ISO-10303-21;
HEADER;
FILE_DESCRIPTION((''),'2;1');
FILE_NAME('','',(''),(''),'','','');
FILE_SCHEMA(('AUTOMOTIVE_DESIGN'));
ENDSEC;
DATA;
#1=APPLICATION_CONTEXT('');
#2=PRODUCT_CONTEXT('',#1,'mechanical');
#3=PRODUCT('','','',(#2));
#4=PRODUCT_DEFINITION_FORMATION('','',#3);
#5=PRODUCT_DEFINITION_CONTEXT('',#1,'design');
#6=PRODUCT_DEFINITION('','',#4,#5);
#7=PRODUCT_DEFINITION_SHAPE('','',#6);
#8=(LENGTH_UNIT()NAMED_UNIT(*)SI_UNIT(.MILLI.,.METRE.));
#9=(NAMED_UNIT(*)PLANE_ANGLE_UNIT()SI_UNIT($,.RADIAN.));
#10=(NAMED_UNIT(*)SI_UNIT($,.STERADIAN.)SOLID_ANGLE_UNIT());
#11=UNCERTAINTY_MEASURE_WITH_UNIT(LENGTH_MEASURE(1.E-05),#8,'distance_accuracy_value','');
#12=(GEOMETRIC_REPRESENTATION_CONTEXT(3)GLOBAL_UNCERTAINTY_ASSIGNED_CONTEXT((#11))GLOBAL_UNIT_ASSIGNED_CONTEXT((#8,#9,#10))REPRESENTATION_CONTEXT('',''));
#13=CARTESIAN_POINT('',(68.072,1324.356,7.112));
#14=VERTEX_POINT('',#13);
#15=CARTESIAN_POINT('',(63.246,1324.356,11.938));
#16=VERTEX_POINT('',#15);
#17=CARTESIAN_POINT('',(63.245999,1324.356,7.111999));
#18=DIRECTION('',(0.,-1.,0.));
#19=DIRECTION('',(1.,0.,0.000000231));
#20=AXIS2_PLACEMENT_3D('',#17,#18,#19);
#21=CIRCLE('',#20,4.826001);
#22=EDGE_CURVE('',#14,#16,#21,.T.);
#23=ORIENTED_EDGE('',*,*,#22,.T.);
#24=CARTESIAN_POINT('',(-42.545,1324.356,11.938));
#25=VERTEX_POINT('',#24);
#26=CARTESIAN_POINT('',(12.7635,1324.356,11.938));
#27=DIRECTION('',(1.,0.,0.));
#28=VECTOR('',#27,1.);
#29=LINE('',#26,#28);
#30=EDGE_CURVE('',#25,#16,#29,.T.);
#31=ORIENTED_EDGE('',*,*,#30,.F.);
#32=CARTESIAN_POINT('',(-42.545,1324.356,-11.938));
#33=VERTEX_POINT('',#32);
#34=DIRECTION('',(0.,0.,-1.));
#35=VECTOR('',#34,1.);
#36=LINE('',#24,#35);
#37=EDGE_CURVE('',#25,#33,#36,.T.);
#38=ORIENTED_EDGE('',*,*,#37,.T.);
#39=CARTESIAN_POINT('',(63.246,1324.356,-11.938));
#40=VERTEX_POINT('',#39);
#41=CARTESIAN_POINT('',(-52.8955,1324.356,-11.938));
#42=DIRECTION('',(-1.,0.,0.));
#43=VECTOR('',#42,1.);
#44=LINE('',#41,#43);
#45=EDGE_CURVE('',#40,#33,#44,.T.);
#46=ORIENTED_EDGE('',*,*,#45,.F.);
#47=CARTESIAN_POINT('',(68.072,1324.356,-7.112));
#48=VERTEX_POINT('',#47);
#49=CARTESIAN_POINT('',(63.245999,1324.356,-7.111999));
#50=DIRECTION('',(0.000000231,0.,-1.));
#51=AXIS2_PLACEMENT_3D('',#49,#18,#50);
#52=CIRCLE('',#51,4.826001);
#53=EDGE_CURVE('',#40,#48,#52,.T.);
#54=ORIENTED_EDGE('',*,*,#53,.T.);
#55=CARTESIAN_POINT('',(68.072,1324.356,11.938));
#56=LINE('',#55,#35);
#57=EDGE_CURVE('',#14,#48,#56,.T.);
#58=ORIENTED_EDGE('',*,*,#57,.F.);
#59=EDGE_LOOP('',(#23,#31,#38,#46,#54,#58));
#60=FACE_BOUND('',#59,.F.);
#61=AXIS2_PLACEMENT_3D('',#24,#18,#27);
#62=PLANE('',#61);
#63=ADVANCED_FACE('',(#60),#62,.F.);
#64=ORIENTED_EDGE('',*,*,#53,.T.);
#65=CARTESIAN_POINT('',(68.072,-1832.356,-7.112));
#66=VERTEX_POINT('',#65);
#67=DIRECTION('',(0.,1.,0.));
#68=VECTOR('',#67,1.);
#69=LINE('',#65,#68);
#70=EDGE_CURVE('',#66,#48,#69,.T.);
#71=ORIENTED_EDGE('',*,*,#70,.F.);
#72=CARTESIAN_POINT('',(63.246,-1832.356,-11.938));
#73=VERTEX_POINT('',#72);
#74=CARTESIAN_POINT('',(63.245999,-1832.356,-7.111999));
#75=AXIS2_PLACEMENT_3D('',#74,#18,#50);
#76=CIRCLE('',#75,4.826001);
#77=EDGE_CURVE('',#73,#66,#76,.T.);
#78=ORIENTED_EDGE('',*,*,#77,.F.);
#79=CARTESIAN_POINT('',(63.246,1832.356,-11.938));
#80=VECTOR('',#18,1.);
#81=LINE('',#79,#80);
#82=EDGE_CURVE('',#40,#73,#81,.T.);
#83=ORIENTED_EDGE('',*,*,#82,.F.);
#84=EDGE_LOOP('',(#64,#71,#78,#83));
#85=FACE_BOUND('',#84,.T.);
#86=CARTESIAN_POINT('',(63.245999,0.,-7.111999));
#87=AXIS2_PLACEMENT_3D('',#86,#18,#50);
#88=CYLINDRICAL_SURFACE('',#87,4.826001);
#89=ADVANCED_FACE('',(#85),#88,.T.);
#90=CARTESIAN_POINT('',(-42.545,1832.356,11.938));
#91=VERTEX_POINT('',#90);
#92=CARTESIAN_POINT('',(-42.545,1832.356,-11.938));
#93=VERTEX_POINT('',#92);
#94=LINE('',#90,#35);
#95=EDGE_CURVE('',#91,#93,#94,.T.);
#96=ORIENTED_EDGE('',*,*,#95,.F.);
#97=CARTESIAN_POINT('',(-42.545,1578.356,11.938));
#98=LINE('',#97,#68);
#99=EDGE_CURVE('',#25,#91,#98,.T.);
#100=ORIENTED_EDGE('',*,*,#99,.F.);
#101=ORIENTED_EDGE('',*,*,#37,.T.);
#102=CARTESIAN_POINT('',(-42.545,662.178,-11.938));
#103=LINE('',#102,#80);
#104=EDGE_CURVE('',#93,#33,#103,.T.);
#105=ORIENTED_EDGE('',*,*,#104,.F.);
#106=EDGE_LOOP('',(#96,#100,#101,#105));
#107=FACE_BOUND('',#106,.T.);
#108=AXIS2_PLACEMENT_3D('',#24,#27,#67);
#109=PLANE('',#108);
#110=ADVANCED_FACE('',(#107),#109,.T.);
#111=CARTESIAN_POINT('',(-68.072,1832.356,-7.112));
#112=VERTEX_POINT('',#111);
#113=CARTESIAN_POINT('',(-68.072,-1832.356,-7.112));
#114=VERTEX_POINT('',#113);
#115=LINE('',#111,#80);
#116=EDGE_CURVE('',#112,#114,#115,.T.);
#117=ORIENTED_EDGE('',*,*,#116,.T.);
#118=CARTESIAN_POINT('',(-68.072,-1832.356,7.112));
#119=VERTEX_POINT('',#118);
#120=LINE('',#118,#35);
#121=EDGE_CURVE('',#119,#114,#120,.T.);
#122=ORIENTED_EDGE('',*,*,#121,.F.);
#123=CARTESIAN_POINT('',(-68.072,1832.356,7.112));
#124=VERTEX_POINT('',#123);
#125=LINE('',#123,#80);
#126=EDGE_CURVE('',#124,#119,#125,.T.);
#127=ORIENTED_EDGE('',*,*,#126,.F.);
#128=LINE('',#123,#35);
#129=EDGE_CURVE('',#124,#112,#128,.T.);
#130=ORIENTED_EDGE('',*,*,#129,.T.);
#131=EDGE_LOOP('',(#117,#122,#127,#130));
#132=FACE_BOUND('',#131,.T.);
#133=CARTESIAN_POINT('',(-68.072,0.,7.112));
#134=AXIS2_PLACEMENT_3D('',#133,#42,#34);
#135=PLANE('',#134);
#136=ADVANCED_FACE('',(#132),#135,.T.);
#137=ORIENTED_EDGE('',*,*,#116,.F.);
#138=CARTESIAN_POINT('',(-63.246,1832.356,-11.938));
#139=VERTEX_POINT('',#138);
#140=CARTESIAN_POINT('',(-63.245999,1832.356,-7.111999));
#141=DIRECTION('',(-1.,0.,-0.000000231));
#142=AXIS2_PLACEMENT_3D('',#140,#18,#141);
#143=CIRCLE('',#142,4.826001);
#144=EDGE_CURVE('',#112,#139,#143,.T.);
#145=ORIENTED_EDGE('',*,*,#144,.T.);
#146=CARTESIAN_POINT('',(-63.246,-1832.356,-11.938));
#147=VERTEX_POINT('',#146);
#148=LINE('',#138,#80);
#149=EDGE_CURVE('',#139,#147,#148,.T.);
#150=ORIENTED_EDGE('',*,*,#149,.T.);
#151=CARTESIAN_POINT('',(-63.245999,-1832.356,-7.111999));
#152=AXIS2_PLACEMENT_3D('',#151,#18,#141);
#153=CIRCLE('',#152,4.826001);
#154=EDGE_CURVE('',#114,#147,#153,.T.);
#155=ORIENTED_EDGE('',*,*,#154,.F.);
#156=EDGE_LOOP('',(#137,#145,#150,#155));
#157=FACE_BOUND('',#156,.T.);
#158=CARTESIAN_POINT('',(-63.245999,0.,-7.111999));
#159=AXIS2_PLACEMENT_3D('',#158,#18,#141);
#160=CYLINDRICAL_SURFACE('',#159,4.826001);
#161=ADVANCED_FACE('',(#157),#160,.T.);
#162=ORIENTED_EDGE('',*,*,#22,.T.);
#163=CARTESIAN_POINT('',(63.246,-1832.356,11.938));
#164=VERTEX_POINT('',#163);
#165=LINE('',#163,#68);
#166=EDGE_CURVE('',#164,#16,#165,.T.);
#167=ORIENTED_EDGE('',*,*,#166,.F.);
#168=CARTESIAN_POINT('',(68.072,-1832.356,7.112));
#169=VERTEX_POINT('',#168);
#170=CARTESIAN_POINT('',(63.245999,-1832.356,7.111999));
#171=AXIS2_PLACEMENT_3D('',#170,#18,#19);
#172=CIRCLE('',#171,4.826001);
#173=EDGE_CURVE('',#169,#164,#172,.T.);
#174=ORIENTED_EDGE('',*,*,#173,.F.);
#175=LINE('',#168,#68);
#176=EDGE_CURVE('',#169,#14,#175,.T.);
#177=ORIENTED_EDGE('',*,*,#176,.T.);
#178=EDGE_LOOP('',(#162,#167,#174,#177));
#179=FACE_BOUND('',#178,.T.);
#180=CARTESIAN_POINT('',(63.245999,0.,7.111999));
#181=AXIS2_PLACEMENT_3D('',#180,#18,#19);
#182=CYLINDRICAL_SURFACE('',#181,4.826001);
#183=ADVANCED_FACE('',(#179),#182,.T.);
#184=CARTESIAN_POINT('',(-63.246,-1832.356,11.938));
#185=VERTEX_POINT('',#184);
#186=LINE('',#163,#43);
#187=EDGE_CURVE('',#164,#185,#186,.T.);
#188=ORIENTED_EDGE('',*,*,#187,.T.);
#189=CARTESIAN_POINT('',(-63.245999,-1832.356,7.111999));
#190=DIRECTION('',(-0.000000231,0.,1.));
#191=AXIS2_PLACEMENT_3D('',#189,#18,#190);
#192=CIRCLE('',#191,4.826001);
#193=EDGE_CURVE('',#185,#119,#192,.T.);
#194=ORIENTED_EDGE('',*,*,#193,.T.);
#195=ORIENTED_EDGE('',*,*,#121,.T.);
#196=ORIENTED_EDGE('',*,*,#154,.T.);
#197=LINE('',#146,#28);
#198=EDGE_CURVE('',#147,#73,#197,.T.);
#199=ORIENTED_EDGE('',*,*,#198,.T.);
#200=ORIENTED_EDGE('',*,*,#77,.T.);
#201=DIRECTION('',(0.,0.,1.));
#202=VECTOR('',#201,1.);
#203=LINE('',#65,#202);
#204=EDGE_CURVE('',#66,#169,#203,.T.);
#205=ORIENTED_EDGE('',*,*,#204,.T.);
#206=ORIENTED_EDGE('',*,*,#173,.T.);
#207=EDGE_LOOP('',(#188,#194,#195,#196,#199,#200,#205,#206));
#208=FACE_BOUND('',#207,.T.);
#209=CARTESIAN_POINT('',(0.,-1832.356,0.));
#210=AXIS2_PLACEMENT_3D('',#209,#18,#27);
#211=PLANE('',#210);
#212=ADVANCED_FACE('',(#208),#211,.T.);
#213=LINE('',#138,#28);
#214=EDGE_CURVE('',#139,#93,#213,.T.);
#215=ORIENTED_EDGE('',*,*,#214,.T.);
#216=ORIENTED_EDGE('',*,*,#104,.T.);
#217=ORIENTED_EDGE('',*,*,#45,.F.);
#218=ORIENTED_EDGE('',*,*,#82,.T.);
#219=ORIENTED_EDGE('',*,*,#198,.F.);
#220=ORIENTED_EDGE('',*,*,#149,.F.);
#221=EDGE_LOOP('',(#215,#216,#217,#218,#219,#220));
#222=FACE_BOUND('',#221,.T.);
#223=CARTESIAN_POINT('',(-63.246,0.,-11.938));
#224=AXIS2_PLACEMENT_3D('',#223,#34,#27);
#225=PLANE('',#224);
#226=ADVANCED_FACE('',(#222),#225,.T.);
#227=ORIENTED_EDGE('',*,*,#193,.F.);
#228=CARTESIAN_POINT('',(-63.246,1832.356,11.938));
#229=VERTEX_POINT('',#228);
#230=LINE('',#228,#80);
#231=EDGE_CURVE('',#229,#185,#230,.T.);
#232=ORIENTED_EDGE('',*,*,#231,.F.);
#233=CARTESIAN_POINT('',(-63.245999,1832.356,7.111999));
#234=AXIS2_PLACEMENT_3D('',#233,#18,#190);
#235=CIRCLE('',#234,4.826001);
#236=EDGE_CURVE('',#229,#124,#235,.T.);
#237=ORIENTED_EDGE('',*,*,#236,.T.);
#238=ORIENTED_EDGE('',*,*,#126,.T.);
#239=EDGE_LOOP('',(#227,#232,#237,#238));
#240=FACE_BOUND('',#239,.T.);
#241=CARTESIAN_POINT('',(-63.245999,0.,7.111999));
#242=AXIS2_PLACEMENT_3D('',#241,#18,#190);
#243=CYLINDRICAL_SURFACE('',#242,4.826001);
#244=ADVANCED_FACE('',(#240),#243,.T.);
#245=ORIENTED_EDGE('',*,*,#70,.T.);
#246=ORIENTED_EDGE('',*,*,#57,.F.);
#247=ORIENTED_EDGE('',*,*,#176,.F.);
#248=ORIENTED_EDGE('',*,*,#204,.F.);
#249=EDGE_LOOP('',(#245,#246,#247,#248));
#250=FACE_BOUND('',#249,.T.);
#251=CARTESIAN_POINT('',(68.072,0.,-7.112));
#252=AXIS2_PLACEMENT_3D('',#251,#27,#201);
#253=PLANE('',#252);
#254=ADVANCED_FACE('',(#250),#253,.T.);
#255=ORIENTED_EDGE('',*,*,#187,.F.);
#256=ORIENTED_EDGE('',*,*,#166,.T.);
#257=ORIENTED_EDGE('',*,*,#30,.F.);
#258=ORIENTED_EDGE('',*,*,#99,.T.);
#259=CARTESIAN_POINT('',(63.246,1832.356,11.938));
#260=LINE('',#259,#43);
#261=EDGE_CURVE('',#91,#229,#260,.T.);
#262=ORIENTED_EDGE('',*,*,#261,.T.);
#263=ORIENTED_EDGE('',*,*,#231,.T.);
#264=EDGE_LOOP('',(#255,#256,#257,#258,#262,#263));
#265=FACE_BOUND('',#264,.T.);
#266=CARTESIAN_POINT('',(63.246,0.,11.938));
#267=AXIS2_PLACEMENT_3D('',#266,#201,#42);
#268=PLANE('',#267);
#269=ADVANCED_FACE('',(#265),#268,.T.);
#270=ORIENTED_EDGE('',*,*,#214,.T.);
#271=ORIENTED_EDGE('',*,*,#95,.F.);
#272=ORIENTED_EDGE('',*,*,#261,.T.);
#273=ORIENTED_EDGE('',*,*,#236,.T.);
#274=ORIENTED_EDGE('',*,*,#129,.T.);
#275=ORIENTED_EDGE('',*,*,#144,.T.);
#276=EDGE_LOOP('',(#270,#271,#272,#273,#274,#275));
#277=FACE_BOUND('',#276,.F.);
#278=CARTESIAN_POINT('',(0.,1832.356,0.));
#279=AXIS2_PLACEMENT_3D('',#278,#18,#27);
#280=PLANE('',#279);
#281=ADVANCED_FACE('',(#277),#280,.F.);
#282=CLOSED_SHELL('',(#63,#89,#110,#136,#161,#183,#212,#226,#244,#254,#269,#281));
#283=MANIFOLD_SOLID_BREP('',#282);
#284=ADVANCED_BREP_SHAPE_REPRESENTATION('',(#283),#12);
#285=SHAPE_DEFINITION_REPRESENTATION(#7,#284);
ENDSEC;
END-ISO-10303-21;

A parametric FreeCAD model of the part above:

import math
import FreeCAD as App
import Part
import Sketcher

V = App.Vector
Q = App.Units.Quantity

doc = App.newDocument("Part")
body = doc.addObject("PartDesign::Body", "Body")

sketch1 = body.newObject("Sketcher::SketchObject", "Sketch")
sketch1.AttachmentSupport = (doc.getObject("XZ_Plane"), [""])
sketch1.MapMode = "FlatFace"
sketch1.addGeometry([
    Part.LineSegment(V(63.2, 11.9, 0), V(-63.2, 11.9, 0)),
    Part.ArcOfCircle(Part.Circle(V(-63.2, 7.1, 0), V(0, 0, 1), 4.8), math.radians(90), math.radians(180)),
    Part.LineSegment(V(-68.1, 7.1, 0), V(-68.1, -7.1, 0)),
    Part.ArcOfCircle(Part.Circle(V(-63.2, -7.1, 0), V(0, 0, 1), 4.8), math.radians(-180), math.radians(-90)),
    Part.LineSegment(V(-63.2, -11.9, 0), V(63.2, -11.9, 0)),
    Part.ArcOfCircle(Part.Circle(V(63.2, -7.1, 0), V(0, 0, 1), 4.8), math.radians(-90), math.radians(0)),
    Part.LineSegment(V(68.1, -7.1, 0), V(68.1, 7.1, 0)),
    Part.ArcOfCircle(Part.Circle(V(63.2, 7.1, 0), V(0, 0, 1), 4.8), math.radians(0), math.radians(90)),
], False)
sketch1.addConstraint([
    Sketcher.Constraint("Tangent", 0, 2, 1, 1),
    Sketcher.Constraint("Tangent", 1, 2, 2, 1),
    Sketcher.Constraint("Tangent", 2, 2, 3, 1),
    Sketcher.Constraint("Tangent", 3, 2, 4, 1),
    Sketcher.Constraint("Tangent", 4, 2, 5, 1),
    Sketcher.Constraint("Tangent", 5, 2, 6, 1),
    Sketcher.Constraint("Tangent", 6, 2, 7, 1),
    Sketcher.Constraint("Tangent", 7, 2, 0, 1),
    Sketcher.Constraint("Horizontal", 0),
    Sketcher.Constraint("Vertical", 2),
    Sketcher.Constraint("Horizontal", 4),
    Sketcher.Constraint("Vertical", 6),
    Sketcher.Constraint("Equal", 1, 3),
    Sketcher.Constraint("Equal", 3, 5),
    Sketcher.Constraint("Equal", 5, 7),
    Sketcher.Constraint("Symmetric", 1, 3, 5, 3, -1, 1),
    Sketcher.Constraint("Radius", 1, Q("0.19 in")),
    Sketcher.Constraint("DistanceX", 0, 2, 0, 1, Q("4.98 in")),
    Sketcher.Constraint("DistanceY", 2, 2, 2, 1, Q("0.56 in")),
])
pad1 = body.newObject("PartDesign::Pad", "Pad")
pad1.Profile = sketch1
pad1.Length = Q("144.28 in")
pad1.Midplane = True

sketch2 = body.newObject("Sketcher::SketchObject", "Sketch001")
sketch2.AttachmentSupport = (doc.getObject("XY_Plane"), [""])
sketch2.MapMode = "FlatFace"
sketch2.AttachmentOffset = App.Placement(V(0, 0, 0.47 * 25.4), App.Rotation())
sketch2.addGeometry([
    Part.LineSegment(V(-43, 1832, 0), V(-43, 1324, 0)),
    Part.LineSegment(V(-43, 1324, 0), V(68, 1324, 0)),
    Part.LineSegment(V(68, 1324, 0), V(68, 1832, 0)),
    Part.LineSegment(V(68, 1832, 0), V(-43, 1832, 0)),
], False)
sketch2.addConstraint([
    Sketcher.Constraint("Coincident", 0, 2, 1, 1),
    Sketcher.Constraint("Coincident", 1, 2, 2, 1),
    Sketcher.Constraint("Coincident", 2, 2, 3, 1),
    Sketcher.Constraint("Coincident", 3, 2, 0, 1),
    Sketcher.Constraint("Vertical", 0),
    Sketcher.Constraint("Horizontal", 1),
    Sketcher.Constraint("Vertical", 2),
    Sketcher.Constraint("Horizontal", 3),
    Sketcher.Constraint("DistanceY", 0, 2, 0, 1, Q("20 in")),
    Sketcher.Constraint("DistanceX", 1, 1, 1, 2, Q("4.355 in")),
    Sketcher.Constraint("DistanceY", -1, 1, 0, 2, Q("52.14 in")),
    Sketcher.Constraint("DistanceX", -1, 1, 1, 2, Q("2.68 in")),
])
pocket1 = body.newObject("PartDesign::Pocket", "Pocket")
pocket1.Profile = sketch2
pocket1.Type = "ThroughAll"

doc.recompute()
